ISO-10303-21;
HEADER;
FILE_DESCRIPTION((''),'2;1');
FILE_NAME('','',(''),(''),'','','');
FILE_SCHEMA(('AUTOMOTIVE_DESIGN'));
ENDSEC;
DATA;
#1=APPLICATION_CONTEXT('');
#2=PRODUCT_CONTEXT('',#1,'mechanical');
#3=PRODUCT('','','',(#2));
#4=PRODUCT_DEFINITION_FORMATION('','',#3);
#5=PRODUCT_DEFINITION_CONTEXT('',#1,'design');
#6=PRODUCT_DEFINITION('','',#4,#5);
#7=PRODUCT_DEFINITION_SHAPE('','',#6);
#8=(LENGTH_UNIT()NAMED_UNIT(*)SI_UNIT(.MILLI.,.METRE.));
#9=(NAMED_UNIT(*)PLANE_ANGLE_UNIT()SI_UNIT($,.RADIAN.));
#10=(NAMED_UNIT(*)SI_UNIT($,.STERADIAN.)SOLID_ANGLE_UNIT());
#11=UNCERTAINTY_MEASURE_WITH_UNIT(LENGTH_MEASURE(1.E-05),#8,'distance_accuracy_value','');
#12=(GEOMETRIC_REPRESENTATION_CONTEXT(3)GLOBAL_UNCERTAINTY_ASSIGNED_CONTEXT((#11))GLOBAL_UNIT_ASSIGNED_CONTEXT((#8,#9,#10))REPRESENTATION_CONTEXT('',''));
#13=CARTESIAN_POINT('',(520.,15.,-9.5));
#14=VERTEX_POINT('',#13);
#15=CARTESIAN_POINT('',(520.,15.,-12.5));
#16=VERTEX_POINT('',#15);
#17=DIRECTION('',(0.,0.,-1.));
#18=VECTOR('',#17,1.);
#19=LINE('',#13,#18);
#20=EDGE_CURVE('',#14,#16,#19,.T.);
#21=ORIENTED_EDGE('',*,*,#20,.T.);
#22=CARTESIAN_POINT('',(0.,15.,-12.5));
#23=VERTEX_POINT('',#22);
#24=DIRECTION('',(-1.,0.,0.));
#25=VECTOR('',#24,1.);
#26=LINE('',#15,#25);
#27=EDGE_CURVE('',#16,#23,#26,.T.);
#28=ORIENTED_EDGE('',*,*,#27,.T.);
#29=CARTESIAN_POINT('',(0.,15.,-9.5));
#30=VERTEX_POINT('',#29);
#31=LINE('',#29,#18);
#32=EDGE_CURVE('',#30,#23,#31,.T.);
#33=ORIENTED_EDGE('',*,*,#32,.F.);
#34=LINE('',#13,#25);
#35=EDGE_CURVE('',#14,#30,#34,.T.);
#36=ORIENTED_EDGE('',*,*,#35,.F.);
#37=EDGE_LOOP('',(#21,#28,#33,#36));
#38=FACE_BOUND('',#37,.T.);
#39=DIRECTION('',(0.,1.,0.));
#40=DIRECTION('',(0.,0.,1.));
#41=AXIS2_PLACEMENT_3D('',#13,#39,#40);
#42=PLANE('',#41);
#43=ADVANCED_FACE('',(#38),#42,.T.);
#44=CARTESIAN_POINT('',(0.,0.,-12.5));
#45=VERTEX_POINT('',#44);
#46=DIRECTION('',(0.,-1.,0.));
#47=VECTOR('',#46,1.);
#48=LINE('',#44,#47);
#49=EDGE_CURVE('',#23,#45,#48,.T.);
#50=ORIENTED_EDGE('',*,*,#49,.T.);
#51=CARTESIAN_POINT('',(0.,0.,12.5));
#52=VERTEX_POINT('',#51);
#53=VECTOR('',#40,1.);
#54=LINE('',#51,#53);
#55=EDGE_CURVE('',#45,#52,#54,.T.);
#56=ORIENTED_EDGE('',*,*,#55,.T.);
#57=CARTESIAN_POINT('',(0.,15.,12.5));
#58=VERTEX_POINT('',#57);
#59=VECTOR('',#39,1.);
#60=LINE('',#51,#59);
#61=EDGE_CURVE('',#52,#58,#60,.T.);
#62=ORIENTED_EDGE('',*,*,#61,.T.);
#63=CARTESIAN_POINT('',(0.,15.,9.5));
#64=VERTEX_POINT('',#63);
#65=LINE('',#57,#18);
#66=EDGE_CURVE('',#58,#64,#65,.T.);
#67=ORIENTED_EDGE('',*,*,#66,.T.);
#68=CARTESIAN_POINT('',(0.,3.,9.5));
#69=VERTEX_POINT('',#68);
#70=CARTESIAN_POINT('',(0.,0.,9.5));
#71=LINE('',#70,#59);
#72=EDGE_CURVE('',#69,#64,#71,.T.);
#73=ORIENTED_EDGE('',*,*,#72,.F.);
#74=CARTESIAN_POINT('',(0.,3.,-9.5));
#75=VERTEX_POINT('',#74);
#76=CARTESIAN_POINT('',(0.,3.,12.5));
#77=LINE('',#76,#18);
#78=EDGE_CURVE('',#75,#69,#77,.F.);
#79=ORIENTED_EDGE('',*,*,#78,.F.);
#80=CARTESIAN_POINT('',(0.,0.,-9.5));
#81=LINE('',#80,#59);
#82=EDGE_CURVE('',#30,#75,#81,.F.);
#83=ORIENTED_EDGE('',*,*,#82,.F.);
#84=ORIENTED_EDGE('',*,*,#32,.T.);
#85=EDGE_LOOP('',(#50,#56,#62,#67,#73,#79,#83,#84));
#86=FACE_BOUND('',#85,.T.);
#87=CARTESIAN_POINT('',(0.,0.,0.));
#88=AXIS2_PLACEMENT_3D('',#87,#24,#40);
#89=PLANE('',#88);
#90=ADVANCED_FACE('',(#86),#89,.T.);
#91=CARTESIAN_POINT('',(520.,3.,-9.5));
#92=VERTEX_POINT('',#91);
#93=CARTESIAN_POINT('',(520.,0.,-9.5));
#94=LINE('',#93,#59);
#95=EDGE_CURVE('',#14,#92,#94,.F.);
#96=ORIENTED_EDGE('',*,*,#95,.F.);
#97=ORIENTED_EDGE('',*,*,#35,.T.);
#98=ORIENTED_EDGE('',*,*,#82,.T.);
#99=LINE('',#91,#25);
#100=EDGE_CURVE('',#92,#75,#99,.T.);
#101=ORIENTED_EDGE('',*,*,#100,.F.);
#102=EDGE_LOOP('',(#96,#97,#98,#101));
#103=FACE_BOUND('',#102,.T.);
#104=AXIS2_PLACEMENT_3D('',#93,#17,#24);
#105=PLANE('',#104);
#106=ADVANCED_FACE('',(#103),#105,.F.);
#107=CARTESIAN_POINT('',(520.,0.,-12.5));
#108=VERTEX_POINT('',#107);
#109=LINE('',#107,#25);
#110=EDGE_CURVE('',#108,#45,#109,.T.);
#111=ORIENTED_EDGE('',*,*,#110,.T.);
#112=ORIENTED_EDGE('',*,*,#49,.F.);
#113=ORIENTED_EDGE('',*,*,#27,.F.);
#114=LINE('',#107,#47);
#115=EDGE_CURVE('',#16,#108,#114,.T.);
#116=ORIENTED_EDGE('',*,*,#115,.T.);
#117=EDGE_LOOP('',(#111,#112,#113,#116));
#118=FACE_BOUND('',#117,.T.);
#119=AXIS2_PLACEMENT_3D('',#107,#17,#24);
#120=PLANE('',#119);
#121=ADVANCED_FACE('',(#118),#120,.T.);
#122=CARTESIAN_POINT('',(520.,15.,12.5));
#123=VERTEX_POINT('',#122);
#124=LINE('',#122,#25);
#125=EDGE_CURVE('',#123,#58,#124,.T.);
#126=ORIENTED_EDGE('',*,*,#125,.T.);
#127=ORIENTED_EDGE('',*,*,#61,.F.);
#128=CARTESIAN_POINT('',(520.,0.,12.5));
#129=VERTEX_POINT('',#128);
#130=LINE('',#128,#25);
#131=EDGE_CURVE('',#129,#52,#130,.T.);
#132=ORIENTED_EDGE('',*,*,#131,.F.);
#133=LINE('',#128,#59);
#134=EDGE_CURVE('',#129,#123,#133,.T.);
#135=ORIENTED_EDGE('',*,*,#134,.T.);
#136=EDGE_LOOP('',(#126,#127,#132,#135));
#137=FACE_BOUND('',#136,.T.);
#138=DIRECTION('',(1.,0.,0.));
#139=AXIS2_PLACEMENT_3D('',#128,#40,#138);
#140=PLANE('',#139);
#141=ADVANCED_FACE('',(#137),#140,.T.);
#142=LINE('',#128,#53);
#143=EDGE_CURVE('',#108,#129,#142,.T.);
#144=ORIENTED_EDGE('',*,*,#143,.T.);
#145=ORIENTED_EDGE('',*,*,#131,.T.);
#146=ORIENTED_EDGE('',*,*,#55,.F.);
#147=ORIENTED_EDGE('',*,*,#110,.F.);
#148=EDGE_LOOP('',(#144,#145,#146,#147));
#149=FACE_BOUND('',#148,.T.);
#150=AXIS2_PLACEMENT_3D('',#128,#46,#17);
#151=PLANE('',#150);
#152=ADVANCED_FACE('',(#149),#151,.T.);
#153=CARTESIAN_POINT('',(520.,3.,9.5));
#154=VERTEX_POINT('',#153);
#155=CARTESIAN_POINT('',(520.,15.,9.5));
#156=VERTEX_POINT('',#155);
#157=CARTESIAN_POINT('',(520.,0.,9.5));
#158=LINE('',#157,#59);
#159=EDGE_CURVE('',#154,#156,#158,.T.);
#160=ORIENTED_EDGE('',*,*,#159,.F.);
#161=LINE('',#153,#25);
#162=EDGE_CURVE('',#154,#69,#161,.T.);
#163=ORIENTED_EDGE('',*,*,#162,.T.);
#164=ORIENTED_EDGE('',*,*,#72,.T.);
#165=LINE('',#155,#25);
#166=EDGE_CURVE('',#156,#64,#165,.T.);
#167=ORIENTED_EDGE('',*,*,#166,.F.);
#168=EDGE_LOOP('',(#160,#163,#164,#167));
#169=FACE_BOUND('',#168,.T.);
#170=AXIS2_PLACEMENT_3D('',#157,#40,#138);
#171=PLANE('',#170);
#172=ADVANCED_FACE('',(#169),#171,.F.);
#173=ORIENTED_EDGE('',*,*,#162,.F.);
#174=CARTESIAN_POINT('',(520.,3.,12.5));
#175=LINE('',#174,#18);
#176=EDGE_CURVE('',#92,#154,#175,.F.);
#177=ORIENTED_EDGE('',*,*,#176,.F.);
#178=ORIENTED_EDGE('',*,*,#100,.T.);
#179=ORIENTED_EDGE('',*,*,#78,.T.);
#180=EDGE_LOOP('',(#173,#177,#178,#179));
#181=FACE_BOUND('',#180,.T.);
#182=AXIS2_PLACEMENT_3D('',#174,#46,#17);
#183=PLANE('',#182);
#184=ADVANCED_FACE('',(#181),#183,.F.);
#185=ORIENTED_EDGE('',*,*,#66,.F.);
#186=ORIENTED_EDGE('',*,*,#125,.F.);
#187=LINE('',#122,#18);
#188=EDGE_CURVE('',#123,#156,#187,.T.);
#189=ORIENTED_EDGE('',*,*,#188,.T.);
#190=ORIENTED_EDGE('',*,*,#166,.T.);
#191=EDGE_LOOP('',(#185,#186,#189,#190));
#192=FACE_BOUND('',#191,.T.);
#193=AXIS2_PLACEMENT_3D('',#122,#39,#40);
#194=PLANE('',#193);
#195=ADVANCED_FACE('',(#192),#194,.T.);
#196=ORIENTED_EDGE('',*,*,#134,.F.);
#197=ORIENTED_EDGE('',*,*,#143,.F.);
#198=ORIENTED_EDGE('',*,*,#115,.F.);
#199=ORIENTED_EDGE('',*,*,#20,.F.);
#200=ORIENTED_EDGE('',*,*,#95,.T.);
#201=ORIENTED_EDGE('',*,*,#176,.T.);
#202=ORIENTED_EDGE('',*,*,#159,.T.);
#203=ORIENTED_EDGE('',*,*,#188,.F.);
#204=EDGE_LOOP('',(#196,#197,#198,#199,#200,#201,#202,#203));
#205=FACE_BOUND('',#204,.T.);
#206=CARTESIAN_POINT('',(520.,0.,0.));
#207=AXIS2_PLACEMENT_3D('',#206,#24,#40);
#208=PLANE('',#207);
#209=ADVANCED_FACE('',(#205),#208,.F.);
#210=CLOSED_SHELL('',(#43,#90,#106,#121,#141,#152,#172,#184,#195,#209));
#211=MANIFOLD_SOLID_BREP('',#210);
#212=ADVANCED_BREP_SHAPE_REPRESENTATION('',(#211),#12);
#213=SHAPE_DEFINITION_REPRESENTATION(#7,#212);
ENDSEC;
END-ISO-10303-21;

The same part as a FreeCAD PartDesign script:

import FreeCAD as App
import Part
import Sketcher


def add_polygon(sketch, points):
    """Adds a closed chain of lines whose ends are joined by coincident constraints."""
    first, n = sketch.GeometryCount, len(points)
    for a, b in zip(points, points[1:] + points[:1]):
        sketch.addGeometry(Part.LineSegment(App.Vector(*a, 0), App.Vector(*b, 0)), False)
    for i in range(n):
        sketch.addConstraint(Sketcher.Constraint("Coincident", first + i, 2, first + (i + 1) % n, 1))

doc = App.newDocument("Part")
body = doc.addObject("PartDesign::Body", "Body")

# Sketch on YZ plane
sketch1 = doc.addObject("Sketcher::SketchObject", "Sketch")
body.addObject(sketch1)
sketch1.AttachmentSupport = (doc.YZ_Plane, [""])
sketch1.MapMode = "FlatFace"
add_polygon(sketch1, [(15, 12.5), (0, 12.5), (0, -12.5), (15, -12.5), (15, -9.5), (3, -9.5), (3, 9.5), (15, 9.5)])  # lines 0-7
sketch1.addConstraint(Sketcher.Constraint("Horizontal", 0))
sketch1.addConstraint(Sketcher.Constraint("Vertical", 1))
sketch1.addConstraint(Sketcher.Constraint("Horizontal", 2))
sketch1.addConstraint(Sketcher.Constraint("Vertical", 3))
sketch1.addConstraint(Sketcher.Constraint("Horizontal", 4))
sketch1.addConstraint(Sketcher.Constraint("Vertical", 5))
sketch1.addConstraint(Sketcher.Constraint("Horizontal", 6))
sketch1.addConstraint(Sketcher.Constraint("Vertical", 7))
sketch1.addConstraint(Sketcher.Constraint("Symmetric", 0, 2, 1, 2, -1, 1))
sketch1.addConstraint(Sketcher.Constraint("Symmetric", 3, 2, 6, 2, -1))
sketch1.addConstraint(Sketcher.Constraint("DistanceX", 0, 2, 0, 1, 15.0))
sketch1.addConstraint(Sketcher.Constraint("DistanceX", 4, 2, 4, 1, 12.0))
sketch1.addConstraint(Sketcher.Constraint("DistanceY", 1, 2, 1, 1, 25.0))
sketch1.addConstraint(Sketcher.Constraint("DistanceY", 3, 1, 3, 2, 3.0))
pad1 = doc.addObject("PartDesign::Pad", "Pad")
body.addObject(pad1)
pad1.Profile = sketch1
pad1.Length = 520

doc.recompute()
